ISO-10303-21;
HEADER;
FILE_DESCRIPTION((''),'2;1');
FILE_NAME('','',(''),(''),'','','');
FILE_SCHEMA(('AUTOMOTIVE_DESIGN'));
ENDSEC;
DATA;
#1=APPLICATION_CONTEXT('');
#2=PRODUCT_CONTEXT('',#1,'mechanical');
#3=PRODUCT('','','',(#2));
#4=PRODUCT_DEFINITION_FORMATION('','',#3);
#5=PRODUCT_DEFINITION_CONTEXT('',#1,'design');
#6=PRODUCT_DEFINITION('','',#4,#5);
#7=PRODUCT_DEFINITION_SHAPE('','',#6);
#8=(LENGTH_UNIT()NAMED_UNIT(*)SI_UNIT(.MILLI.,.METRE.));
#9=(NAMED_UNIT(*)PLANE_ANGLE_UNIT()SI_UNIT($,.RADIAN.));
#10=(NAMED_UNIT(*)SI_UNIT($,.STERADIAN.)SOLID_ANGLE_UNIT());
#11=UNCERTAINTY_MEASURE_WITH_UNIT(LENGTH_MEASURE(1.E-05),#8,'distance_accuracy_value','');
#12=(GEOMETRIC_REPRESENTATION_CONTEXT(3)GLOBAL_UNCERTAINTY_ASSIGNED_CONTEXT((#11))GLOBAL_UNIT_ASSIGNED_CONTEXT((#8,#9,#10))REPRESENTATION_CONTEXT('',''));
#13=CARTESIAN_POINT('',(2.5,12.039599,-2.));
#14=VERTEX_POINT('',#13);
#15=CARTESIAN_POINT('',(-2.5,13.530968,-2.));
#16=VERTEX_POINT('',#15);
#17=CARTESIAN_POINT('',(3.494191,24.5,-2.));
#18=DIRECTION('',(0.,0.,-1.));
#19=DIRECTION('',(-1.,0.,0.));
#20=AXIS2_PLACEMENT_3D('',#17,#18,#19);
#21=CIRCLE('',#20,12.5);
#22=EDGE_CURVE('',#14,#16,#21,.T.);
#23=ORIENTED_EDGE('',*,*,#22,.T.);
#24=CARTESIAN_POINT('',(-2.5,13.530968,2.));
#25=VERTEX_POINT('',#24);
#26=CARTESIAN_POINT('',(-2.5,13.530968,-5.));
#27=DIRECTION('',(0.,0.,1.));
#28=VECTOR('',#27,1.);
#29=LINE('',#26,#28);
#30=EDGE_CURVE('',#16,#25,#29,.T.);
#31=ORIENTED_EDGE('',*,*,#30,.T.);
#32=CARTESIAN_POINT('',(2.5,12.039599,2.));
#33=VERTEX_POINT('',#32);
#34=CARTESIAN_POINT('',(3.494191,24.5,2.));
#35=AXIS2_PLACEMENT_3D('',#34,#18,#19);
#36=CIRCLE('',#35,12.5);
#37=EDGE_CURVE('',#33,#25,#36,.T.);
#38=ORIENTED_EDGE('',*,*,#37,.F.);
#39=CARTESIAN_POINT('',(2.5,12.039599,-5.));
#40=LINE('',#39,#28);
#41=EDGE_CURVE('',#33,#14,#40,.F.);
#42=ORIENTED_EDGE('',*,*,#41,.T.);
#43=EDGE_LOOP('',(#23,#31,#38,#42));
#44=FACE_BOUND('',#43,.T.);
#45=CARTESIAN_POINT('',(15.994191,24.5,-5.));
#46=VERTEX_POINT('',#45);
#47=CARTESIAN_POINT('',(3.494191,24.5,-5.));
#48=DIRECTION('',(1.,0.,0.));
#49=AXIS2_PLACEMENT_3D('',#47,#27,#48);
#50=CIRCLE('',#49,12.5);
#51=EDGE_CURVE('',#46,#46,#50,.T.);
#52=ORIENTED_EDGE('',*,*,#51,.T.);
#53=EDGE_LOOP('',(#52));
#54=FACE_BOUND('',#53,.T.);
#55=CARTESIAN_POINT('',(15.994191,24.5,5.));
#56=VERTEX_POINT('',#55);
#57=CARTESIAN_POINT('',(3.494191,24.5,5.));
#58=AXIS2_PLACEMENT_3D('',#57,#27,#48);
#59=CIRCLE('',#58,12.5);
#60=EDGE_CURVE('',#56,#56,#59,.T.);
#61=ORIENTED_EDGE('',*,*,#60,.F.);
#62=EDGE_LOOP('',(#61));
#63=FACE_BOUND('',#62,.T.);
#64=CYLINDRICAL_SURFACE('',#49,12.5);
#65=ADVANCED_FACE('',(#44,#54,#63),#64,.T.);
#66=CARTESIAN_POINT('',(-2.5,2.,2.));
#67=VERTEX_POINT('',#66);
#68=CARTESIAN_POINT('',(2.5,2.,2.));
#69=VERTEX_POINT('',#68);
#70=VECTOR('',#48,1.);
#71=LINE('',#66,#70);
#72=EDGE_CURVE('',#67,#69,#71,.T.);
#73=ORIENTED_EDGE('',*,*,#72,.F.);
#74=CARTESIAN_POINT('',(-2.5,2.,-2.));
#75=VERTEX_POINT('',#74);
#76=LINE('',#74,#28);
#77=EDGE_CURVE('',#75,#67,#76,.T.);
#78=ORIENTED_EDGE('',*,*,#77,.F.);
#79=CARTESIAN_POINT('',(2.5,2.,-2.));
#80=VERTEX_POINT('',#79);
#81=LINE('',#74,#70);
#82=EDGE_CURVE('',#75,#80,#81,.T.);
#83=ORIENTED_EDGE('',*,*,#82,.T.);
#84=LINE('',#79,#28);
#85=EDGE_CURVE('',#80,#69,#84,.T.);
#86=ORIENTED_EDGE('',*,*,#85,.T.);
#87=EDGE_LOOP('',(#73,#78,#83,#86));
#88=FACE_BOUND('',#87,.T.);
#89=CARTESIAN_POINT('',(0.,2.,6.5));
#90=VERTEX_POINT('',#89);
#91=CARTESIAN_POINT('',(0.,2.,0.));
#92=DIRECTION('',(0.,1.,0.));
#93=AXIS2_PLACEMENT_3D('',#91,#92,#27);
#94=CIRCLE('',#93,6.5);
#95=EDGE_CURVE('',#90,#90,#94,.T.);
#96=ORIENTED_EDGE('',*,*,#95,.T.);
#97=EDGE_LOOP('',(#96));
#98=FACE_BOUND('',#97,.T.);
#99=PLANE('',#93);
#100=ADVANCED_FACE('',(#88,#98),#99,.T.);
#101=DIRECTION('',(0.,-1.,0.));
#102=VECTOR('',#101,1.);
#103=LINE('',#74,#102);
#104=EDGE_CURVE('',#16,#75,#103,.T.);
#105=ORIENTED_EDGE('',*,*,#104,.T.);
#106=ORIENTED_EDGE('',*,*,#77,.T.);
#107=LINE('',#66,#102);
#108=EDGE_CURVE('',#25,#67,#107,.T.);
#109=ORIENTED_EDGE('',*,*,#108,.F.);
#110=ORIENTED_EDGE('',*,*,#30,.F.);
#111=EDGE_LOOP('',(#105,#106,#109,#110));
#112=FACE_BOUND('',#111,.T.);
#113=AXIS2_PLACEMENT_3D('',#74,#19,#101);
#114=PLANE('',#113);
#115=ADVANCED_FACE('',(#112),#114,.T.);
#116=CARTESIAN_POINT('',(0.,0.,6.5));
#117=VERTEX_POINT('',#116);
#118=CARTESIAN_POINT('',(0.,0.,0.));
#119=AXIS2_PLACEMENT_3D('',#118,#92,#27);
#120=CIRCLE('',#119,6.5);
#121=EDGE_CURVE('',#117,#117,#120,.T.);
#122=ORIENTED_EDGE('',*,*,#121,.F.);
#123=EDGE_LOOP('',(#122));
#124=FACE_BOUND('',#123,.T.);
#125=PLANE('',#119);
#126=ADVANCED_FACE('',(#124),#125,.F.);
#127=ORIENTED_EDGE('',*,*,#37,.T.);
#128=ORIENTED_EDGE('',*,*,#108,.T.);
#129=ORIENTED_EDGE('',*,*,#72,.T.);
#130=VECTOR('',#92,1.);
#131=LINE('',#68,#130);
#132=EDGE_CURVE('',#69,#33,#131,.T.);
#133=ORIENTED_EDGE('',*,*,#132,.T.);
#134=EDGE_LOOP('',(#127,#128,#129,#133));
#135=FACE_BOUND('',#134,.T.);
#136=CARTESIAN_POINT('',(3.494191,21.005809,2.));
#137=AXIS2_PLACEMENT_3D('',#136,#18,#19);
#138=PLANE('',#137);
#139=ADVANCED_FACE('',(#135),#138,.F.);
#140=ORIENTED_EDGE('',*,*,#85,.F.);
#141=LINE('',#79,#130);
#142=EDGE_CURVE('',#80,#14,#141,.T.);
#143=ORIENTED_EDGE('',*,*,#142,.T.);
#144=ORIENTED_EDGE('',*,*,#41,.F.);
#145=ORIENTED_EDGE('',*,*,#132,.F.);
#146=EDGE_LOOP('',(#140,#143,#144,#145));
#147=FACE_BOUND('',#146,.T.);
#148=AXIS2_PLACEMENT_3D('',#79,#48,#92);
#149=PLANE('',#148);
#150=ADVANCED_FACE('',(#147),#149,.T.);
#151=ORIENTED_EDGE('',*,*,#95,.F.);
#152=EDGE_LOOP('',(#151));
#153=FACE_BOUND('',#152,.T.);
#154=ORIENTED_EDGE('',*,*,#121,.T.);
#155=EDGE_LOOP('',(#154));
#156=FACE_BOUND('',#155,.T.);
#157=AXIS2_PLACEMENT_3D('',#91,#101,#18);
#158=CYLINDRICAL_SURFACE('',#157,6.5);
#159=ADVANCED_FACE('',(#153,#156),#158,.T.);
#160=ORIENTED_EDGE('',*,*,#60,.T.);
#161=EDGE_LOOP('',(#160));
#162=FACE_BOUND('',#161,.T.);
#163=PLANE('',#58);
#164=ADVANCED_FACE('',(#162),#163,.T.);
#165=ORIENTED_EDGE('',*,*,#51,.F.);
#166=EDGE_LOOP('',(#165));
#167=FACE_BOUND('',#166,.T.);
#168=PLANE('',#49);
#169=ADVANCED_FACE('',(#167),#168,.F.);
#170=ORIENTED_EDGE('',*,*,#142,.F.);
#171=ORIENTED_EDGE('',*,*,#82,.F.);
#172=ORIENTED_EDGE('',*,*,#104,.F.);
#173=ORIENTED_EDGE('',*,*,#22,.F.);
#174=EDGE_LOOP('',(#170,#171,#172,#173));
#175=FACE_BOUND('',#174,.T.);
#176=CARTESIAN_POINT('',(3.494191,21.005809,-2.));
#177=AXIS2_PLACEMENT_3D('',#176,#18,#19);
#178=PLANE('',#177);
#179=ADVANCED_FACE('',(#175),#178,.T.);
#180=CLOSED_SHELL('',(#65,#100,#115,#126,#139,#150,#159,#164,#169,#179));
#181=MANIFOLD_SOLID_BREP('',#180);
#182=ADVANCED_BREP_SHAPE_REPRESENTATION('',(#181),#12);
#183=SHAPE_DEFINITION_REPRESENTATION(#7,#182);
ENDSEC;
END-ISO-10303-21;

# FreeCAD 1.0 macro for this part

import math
import FreeCAD as App
import Part
import Sketcher

V = App.Vector
Q = App.Units.Quantity

doc = App.newDocument("Part")
body = doc.addObject("PartDesign::Body", "Body")

# Sketch on XZ plane
sketch1 = body.newObject("Sketcher::SketchObject", "Sketch")
sketch1.AttachmentSupport = (doc.getObject("XZ_Plane"), [""])
sketch1.MapMode = "FlatFace"
sketch1.addGeometry(Part.Circle(V(0, 0, 0), V(0, 0, 1), 6), False)
sketch1.addConstraint(Sketcher.Constraint("Coincident", 0, 3, -1, 1))
sketch1.addConstraint(Sketcher.Constraint("Diameter", 0, Q("13 mm")))
pad1 = body.newObject("PartDesign::Pad", "Pad")
pad1.Profile = sketch1
pad1.Length = 2
pad1.Reversed = True

# Sketch on XY plane
sketch2 = body.newObject("Sketcher::SketchObject", "Sketch001")
sketch2.AttachmentSupport = (doc.getObject("XY_Plane"), [""])
sketch2.MapMode = "FlatFace"
sketch2.addGeometry(Part.LineSegment(V(-2.5, 21, 0), V(-2.5, 2, 0)), False)
sketch2.addGeometry(Part.LineSegment(V(-2.5, 2, 0), V(2.5, 2, 0)), False)
sketch2.addGeometry(Part.LineSegment(V(2.5, 2, 0), V(2.5, 21, 0)), False)
sketch2.addGeometry(Part.ArcOfCircle(Part.Circle(V(3.5, 21, 0), V(0, 0, 1), 1), math.radians(90), math.radians(180)), False)
sketch2.addGeometry(Part.ArcOfCircle(Part.Circle(V(3.5, 24.5, 0), V(0, 0, 1), 2.5), math.radians(-90), math.radians(90)), False)
sketch2.addGeometry(Part.ArcOfCircle(Part.Circle(V(3.5, 21, 0), V(0, 0, 1), 6), math.radians(90), math.radians(180)), False)
sketch2.addConstraint(Sketcher.Constraint("Coincident", 0, 2, 1, 1))
sketch2.addConstraint(Sketcher.Constraint("Coincident", 1, 2, 2, 1))
sketch2.addConstraint(Sketcher.Constraint("Tangent", 2, 2, 3, 2))
sketch2.addConstraint(Sketcher.Constraint("Tangent", 3, 1, 4, 1))
sketch2.addConstraint(Sketcher.Constraint("Tangent", 4, 2, 5, 1))
sketch2.addConstraint(Sketcher.Constraint("Tangent", 5, 2, 0, 1))
sketch2.addConstraint(Sketcher.Constraint("Vertical", 0))
sketch2.addConstraint(Sketcher.Constraint("Horizontal", 1))
sketch2.addConstraint(Sketcher.Constraint("Vertical", 2))
sketch2.addConstraint(Sketcher.Constraint("Coincident", 5, 3, 3, 3))
sketch2.addConstraint(Sketcher.Constraint("Vertical", 3, 3, 4, 3))
sketch2.addConstraint(Sketcher.Constraint("Radius", 4, Q("2.5 mm")))
sketch2.addConstraint(Sketcher.Constraint("DistanceY", -1, 1, 0, 2, Q("2 mm")))
sketch2.addConstraint(Sketcher.Constraint("DistanceY", -1, 1, 3, 1, Q("22 mm")))
sketch2.addConstraint(Sketcher.Constraint("DistanceX", 0, 2, -1, 1, Q("2.5 mm")))
sketch2.addConstraint(Sketcher.Constraint("Radius", 3, Q("0.994191 mm")))
pad2 = body.newObject("PartDesign::Pad", "Pad001")
pad2.Profile = sketch2
pad2.Type = "TwoLengths"
pad2.Length = 2
pad2.Length2 = 2

# Sketch on XY plane
sketch3 = body.newObject("Sketcher::SketchObject", "Sketch002")
sketch3.AttachmentSupport = (doc.getObject("XY_Plane"), [""])
sketch3.MapMode = "FlatFace"
sketch3.addGeometry(Part.Circle(V(3, 24, 0), V(0, 0, 1), 12), False)
sketch3.addConstraint(Sketcher.Constraint("Diameter", 0, Q("25 mm")))
sketch3.addConstraint(Sketcher.Constraint("DistanceY", -1, 1, 0, 3, Q("24.5 mm")))
sketch3.addConstraint(Sketcher.Constraint("DistanceX", -1, 1, 0, 3, Q("3.494191 mm")))
pad3 = body.newObject("PartDesign::Pad", "Pad002")
pad3.Profile = sketch3
pad3.Type = "TwoLengths"
pad3.Length = 5
pad3.Length2 = 5

doc.recompute()
